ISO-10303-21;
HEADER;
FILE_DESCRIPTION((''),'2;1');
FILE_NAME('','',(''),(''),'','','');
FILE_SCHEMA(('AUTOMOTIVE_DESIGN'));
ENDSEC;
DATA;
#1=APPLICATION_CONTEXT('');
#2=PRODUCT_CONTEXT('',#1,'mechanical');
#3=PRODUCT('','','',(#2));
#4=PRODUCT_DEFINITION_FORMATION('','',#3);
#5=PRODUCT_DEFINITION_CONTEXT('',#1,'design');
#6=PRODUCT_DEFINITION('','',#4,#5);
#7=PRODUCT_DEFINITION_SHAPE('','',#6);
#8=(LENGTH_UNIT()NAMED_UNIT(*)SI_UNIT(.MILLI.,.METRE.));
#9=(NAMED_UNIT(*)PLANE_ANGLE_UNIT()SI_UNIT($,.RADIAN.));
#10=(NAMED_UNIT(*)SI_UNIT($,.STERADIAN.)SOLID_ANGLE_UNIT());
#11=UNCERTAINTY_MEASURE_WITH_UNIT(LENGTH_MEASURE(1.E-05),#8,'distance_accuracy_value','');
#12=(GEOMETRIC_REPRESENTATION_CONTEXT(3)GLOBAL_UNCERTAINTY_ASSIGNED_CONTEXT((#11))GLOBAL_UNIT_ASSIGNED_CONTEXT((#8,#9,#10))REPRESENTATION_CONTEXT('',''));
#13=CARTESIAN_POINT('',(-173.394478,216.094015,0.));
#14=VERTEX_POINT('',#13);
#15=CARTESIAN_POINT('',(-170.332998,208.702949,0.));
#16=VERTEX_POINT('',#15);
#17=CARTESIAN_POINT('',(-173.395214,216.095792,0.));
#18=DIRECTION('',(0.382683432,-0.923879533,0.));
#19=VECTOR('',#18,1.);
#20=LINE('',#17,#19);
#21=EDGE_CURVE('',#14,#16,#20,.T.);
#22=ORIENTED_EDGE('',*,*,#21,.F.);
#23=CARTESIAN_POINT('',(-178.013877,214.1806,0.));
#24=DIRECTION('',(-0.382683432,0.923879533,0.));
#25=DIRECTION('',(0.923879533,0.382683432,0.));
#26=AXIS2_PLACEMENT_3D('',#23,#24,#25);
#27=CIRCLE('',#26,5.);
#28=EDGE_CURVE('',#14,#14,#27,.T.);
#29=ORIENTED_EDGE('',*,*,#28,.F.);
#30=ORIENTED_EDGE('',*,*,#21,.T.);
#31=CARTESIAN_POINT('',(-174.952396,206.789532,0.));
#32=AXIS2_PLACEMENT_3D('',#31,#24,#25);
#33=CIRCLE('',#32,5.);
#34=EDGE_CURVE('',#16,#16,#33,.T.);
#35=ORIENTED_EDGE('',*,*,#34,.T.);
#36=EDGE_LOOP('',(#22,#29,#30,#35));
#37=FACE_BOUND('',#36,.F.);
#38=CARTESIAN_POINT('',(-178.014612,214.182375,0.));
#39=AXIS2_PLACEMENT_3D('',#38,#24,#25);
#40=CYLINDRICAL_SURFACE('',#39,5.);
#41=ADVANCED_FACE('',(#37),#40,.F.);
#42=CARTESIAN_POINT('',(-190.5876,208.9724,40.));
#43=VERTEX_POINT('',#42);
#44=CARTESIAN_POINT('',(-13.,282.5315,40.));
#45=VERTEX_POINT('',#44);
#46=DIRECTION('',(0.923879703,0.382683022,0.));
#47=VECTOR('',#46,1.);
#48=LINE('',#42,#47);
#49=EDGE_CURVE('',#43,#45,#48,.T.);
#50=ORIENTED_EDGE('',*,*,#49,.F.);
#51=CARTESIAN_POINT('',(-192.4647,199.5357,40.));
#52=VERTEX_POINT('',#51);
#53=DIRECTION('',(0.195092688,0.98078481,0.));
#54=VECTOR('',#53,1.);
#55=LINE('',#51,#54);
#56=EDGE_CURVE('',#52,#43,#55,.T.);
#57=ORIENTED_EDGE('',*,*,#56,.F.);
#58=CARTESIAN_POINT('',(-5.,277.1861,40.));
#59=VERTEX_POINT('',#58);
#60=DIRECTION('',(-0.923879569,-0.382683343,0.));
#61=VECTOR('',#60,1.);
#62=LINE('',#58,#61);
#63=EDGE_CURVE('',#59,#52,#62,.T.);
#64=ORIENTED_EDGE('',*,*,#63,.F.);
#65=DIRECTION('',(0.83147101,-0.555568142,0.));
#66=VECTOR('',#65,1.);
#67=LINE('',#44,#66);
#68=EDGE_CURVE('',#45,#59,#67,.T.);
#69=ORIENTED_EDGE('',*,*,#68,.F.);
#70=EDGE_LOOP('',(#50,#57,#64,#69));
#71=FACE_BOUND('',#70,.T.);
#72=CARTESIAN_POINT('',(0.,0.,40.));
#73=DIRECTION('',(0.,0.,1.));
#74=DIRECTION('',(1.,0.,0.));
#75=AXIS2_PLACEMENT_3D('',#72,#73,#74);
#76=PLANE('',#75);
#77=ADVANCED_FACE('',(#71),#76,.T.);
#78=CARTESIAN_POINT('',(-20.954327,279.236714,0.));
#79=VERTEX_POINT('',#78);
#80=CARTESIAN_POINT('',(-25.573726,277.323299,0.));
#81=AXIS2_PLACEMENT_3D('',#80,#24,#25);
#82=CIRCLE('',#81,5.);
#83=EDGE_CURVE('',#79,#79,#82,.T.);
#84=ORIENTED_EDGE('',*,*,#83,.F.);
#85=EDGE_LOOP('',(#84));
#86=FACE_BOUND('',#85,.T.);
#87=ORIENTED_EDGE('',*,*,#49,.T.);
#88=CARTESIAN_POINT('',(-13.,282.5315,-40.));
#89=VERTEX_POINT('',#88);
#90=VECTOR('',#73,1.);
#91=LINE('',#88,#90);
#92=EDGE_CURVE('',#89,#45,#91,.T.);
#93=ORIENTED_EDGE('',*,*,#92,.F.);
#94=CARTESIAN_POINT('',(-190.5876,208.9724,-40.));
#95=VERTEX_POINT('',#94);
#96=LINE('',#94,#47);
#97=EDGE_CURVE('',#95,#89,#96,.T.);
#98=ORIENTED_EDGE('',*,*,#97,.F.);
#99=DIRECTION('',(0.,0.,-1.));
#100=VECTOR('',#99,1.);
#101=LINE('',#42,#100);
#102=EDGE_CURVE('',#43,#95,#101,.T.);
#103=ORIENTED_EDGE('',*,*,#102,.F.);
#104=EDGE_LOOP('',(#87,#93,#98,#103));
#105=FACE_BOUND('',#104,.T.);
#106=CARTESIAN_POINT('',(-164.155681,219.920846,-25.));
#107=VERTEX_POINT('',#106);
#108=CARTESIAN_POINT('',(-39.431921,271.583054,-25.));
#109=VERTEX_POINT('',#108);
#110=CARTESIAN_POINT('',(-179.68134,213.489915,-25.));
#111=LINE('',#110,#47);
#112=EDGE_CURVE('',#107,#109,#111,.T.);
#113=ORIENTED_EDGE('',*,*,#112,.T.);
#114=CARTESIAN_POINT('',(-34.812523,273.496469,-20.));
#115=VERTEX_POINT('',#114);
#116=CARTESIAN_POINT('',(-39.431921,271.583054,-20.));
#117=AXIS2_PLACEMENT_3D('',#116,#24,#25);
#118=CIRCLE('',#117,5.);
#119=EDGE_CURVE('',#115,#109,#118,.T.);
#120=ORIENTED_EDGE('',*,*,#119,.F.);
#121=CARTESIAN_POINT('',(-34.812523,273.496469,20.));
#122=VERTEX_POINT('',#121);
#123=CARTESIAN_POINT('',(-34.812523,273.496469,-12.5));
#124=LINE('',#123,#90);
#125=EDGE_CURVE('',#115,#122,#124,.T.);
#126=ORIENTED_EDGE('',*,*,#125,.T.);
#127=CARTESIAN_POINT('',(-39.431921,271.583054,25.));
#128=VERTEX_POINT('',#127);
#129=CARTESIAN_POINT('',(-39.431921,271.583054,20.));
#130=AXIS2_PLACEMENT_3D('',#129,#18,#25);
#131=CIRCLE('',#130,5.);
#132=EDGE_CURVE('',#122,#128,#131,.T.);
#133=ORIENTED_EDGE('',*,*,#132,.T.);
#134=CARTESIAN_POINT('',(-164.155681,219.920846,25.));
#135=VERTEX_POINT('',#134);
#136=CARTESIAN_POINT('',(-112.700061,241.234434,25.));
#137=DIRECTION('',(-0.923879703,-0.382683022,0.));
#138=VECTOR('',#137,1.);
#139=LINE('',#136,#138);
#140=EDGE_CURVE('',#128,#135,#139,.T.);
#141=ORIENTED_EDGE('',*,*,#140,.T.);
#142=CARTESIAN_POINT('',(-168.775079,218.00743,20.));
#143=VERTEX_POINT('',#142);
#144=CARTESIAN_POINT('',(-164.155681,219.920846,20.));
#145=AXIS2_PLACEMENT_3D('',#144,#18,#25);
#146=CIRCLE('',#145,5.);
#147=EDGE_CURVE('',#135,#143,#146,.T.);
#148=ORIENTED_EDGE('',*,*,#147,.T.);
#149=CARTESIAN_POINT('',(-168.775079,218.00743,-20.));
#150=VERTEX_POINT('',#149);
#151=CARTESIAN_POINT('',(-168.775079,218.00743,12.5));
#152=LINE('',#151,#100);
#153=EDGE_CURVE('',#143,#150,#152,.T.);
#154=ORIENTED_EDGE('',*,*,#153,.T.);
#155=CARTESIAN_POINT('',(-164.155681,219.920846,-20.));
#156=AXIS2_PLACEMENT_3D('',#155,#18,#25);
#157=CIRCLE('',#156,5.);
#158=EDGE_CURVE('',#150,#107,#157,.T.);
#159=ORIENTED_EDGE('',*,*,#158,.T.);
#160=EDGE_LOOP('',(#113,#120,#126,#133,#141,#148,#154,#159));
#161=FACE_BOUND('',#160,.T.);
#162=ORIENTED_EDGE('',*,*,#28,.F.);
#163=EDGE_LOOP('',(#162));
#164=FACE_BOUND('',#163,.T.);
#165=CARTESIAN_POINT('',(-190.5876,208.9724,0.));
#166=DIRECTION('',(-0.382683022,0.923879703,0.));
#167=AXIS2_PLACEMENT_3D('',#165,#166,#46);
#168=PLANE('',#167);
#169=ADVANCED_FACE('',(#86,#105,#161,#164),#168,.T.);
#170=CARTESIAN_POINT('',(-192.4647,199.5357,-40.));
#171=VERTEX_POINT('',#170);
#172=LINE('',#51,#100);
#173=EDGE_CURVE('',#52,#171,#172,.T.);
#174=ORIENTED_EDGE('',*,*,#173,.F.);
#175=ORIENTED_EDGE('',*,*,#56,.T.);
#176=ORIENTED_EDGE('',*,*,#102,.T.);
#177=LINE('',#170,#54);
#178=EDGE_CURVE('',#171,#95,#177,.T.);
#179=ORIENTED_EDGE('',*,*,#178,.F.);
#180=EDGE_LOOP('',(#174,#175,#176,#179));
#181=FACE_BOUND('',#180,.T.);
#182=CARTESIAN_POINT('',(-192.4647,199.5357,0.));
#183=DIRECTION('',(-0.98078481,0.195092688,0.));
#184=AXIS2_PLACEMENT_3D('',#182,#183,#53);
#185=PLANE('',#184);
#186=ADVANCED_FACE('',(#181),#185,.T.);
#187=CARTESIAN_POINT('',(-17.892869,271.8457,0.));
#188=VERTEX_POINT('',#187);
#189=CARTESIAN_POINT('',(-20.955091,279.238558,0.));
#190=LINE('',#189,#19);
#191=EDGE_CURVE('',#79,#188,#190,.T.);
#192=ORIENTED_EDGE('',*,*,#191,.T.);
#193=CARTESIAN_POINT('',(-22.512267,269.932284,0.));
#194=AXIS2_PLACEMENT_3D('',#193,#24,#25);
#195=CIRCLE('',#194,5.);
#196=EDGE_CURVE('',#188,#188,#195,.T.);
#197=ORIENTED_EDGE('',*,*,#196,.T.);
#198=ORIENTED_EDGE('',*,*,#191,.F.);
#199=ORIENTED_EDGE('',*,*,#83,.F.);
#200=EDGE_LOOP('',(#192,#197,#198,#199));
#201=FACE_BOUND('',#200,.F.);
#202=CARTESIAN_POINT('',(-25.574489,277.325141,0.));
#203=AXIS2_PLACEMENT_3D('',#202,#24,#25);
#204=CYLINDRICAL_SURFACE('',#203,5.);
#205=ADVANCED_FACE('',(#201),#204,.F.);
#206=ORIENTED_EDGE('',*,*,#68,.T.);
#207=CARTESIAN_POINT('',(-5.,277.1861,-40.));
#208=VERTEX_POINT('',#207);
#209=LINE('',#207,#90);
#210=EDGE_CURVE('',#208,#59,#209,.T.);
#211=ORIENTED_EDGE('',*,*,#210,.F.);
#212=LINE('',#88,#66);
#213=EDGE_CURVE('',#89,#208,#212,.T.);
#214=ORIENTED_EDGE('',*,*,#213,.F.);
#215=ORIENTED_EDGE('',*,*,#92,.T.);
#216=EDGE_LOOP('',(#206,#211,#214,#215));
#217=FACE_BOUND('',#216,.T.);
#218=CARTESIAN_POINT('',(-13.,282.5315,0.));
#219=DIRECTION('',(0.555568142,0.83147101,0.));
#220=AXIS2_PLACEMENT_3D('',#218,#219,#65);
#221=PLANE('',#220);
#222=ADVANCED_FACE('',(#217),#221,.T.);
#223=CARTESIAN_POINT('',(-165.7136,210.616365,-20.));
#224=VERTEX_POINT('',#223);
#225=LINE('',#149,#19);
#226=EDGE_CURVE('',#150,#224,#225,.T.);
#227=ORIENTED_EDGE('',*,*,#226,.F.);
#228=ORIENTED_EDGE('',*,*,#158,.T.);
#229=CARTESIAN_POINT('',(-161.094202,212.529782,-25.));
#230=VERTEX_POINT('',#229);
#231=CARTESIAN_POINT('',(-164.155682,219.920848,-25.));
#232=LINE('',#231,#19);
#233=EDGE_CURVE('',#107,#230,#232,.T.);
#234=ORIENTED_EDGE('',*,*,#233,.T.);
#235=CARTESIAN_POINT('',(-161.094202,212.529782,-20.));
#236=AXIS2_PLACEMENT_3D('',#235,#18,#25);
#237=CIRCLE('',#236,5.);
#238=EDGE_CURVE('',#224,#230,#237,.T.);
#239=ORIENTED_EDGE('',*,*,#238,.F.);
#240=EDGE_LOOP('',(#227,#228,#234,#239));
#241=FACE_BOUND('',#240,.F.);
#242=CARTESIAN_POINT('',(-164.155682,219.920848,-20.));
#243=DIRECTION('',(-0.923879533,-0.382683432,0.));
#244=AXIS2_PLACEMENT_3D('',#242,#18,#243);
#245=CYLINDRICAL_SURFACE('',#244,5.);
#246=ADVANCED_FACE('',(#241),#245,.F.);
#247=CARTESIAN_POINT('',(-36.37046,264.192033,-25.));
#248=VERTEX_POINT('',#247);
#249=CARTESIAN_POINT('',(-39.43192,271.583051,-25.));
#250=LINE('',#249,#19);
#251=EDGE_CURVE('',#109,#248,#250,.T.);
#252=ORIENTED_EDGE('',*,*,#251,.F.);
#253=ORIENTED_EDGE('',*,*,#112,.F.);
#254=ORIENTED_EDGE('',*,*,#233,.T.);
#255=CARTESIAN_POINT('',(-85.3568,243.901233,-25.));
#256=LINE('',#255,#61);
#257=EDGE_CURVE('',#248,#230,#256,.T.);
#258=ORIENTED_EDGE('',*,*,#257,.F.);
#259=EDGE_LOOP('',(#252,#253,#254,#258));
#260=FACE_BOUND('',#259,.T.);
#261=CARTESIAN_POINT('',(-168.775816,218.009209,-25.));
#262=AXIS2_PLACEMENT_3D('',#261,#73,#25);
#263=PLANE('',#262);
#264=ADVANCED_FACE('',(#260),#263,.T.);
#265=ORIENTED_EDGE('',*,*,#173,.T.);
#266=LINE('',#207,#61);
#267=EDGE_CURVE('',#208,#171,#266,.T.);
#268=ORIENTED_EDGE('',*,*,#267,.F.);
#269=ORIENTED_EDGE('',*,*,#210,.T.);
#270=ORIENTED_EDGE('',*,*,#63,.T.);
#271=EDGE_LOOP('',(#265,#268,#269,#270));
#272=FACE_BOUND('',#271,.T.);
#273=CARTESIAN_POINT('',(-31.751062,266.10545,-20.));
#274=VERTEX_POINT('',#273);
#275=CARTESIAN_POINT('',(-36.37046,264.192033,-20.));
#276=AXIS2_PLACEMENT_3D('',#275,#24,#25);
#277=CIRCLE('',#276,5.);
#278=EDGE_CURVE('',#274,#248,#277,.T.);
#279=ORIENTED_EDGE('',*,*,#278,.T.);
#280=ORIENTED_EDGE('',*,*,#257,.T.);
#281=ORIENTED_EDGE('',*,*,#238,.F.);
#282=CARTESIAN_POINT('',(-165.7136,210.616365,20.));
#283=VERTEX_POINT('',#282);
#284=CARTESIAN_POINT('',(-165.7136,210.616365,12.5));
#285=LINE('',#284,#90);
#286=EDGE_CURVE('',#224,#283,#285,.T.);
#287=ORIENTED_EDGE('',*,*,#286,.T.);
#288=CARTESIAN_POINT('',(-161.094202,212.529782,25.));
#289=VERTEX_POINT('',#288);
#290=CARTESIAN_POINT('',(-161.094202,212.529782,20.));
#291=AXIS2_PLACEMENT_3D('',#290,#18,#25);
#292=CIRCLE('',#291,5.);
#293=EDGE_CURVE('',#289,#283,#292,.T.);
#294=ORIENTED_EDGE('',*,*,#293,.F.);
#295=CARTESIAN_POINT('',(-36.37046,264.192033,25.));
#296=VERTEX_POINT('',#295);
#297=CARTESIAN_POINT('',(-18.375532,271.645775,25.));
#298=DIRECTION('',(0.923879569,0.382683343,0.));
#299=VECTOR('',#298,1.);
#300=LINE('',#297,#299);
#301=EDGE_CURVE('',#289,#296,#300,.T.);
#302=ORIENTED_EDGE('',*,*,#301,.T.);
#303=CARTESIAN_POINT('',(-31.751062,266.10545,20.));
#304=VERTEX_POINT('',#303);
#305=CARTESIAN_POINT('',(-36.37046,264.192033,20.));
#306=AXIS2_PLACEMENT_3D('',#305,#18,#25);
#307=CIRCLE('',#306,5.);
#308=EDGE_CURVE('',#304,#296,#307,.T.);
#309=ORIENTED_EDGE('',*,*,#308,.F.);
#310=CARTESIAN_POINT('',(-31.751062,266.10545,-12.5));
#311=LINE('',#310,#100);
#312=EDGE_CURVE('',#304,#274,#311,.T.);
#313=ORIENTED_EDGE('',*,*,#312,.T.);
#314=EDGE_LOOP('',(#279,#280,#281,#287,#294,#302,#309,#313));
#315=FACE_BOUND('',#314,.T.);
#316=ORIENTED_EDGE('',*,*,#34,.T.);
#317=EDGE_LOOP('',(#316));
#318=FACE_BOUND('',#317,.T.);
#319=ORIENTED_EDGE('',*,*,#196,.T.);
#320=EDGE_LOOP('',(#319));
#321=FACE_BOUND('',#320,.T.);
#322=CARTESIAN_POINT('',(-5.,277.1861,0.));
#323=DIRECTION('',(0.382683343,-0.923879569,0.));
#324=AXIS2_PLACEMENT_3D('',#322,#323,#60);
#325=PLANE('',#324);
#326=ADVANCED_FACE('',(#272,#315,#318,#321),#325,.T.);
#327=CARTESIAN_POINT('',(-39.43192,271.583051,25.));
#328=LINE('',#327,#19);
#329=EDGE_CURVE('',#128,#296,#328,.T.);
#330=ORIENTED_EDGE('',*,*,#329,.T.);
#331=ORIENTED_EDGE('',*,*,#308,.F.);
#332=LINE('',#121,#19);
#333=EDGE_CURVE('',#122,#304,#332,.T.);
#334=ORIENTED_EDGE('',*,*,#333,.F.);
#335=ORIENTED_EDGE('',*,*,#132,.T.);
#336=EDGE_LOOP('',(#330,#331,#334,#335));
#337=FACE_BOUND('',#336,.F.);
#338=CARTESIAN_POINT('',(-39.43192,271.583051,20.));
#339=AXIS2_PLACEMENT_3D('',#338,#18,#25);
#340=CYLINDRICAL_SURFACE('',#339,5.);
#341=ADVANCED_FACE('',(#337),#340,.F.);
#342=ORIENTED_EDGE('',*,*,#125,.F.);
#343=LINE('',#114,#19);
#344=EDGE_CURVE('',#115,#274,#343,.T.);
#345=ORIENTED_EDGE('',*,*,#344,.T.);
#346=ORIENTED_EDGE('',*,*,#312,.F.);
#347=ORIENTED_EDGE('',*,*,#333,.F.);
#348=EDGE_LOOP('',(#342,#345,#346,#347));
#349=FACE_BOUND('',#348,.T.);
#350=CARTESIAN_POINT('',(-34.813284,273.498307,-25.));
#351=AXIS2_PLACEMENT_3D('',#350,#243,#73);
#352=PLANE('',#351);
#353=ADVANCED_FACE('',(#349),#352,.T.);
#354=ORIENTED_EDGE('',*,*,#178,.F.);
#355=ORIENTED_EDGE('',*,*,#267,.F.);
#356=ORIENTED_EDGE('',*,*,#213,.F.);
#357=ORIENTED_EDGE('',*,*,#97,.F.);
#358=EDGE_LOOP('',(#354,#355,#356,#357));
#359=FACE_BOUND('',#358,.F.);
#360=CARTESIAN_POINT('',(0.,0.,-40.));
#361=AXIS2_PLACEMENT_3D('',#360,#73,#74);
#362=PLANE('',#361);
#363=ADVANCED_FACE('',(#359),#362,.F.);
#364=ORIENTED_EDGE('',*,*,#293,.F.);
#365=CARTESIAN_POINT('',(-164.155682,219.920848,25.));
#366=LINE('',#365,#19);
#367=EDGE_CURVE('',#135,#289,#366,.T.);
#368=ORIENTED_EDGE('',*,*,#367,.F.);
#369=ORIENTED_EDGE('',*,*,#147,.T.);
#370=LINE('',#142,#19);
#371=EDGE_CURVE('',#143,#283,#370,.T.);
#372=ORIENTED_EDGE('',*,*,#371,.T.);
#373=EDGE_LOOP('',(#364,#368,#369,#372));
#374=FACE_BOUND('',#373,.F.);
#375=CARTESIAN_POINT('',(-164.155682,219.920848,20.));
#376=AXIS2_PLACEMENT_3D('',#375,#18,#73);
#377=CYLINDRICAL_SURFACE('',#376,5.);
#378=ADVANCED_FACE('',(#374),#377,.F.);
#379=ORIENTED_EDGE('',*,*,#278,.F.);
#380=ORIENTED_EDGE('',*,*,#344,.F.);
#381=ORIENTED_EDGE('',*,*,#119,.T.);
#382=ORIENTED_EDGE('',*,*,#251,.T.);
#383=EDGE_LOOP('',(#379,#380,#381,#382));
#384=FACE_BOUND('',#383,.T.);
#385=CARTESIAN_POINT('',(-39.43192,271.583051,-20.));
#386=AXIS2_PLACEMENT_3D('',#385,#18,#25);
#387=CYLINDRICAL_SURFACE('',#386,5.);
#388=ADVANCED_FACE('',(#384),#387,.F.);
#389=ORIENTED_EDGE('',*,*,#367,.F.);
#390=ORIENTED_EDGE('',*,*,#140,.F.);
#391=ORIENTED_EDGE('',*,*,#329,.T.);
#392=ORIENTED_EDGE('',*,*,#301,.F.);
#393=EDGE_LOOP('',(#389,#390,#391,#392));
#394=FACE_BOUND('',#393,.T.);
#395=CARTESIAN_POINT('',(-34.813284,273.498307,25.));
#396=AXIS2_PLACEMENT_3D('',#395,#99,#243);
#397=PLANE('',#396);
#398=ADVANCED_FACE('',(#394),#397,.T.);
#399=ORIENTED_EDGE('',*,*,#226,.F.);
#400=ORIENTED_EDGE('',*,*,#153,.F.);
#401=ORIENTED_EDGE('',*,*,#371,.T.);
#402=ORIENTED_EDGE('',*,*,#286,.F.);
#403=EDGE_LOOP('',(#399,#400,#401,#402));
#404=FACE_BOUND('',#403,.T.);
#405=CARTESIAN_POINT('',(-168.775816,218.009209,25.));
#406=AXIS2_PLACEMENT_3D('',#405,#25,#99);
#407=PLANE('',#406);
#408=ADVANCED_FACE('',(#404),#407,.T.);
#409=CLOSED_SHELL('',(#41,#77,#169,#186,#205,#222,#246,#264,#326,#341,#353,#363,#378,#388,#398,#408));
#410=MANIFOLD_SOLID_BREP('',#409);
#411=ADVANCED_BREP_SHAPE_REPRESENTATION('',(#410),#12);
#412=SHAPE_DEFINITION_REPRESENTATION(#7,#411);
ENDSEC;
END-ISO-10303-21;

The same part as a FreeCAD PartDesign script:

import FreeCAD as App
import Part
import Sketcher
Q = App.Units.Quantity


def edges_at(feature, points):
    """Names of the edges that pass closest to the given points."""
    edges = feature.Shape.Edges
    near = lambda p: min(range(len(edges)), key=lambda i: edges[i].distToShape(Part.Vertex(*p))[0])
    return sorted({f"Edge{near(p) + 1}" for p in points})

doc = App.newDocument("Part")
body = doc.addObject("PartDesign::Body", "Body")

sketch1 = doc.addObject("Sketcher::SketchObject", "Sketch")
body.addObject(sketch1)
sketch1.AttachmentSupport = (doc.XY_Plane, [""])
sketch1.MapMode = "FlatFace"
sketch1.addGeometry([
    Part.LineSegment(App.Vector(-192, 200, 0), App.Vector(-5, 277, 0)),
    Part.LineSegment(App.Vector(-5, 277, 0), App.Vector(-13, 283, 0)),
    Part.LineSegment(App.Vector(-13, 283, 0), App.Vector(-191, 209, 0)),
    Part.LineSegment(App.Vector(-191, 209, 0), App.Vector(-192, 200, 0)),
], False)
sketch1.addConstraint([
    Sketcher.Constraint("Coincident", 0, 2, 1, 1),
    Sketcher.Constraint("Coincident", 1, 2, 2, 1),
    Sketcher.Constraint("Coincident", 2, 2, 3, 1),
    Sketcher.Constraint("Coincident", 3, 2, 0, 1),
    Sketcher.Constraint("Parallel", 0, 2),
    Sketcher.Constraint("Equal", 1, 3),
    Sketcher.Constraint("DistanceX", 0, 2, -1, 1, 5.0),
    Sketcher.Constraint("DistanceX", 1, 2, 0, 2, 8.0),
    Sketcher.Constraint("Angle", 0, Q("22.5 deg")),
    Sketcher.Constraint("Angle", 1, Q("146.2501 deg")),
    Sketcher.Constraint("DistanceY", -1, 1, 0, 2, 277.186),
    Sketcher.Constraint("DistanceY", 2, 2, 1, 2, 73.559),
])
pad1 = doc.addObject("PartDesign::Pad", "Pad")
body.addObject(pad1)
pad1.Profile = sketch1
pad1.Length = 80
pad1.Midplane = True

sketch2 = doc.addObject("Sketcher::SketchObject", "Sketch001")
body.addObject(sketch2)
sketch2.Placement = App.Placement(App.Vector(-13, 282.5315, -40), App.Rotation(App.Vector(0.923879533, 0.382683432, 0), App.Vector(0, 0, -1.000000001), App.Vector(-0.382683432, 0.923879533, 0), "ZXY"))
sketch2.addGeometry([
    Part.LineSegment(App.Vector(-24, -15, 0), App.Vector(-169, -15, 0)),
    Part.LineSegment(App.Vector(-169, -15, 0), App.Vector(-169, -65, 0)),
    Part.LineSegment(App.Vector(-169, -65, 0), App.Vector(-24, -65, 0)),
    Part.LineSegment(App.Vector(-24, -65, 0), App.Vector(-24, -15, 0)),
    Part.Circle(App.Vector(-14, -40, 0), App.Vector(0, 0, 1), 5),
    Part.Circle(App.Vector(-179, -40, 0), App.Vector(0, 0, 1), 5),
], False)
sketch2.addConstraint([
    Sketcher.Constraint("Coincident", 0, 2, 1, 1),
    Sketcher.Constraint("Coincident", 1, 2, 2, 1),
    Sketcher.Constraint("Coincident", 2, 2, 3, 1),
    Sketcher.Constraint("Coincident", 3, 2, 0, 1),
    Sketcher.Constraint("Horizontal", 0),
    Sketcher.Constraint("Vertical", 1),
    Sketcher.Constraint("Horizontal", 2),
    Sketcher.Constraint("Vertical", 3),
    Sketcher.Constraint("Equal", 4, 5),
    Sketcher.Constraint("Horizontal", 4, 3, 5, 3),
    Sketcher.Constraint("Diameter", 4, 10.0),
    Sketcher.Constraint("DistanceX", 0, 2, 0, 1, 145.0),
    Sketcher.Constraint("DistanceY", 1, 2, 1, 1, 50.0),
    Sketcher.Constraint("DistanceX", 5, 3, 0, 2, 10.0),
    Sketcher.Constraint("DistanceX", 2, 2, 4, 3, 10.0),
    Sketcher.Constraint("DistanceY", 4, 3, -1, 1, 40.0),
    Sketcher.Constraint("DistanceY", 0, 2, -1, 1, 15.0),
    Sketcher.Constraint("DistanceX", 4, 3, -1, 1, 13.6097),
])
pocket1 = doc.addObject("PartDesign::Pocket", "Pocket")
body.addObject(pocket1)
pocket1.Profile = sketch2
pocket1.Length = 8
doc.recompute()

fillet = doc.addObject("PartDesign::Fillet", "Fillet")
body.addObject(fillet)
fillet.Base = (pocket1, edges_at(pocket1, [
    (-167.244, 214.312, -25),
    (-33.282, 269.801, -25),
    (-33.282, 269.801, 25),
    (-167.244, 214.312, 25),
]))
fillet.Radius = 5

doc.recompute()
